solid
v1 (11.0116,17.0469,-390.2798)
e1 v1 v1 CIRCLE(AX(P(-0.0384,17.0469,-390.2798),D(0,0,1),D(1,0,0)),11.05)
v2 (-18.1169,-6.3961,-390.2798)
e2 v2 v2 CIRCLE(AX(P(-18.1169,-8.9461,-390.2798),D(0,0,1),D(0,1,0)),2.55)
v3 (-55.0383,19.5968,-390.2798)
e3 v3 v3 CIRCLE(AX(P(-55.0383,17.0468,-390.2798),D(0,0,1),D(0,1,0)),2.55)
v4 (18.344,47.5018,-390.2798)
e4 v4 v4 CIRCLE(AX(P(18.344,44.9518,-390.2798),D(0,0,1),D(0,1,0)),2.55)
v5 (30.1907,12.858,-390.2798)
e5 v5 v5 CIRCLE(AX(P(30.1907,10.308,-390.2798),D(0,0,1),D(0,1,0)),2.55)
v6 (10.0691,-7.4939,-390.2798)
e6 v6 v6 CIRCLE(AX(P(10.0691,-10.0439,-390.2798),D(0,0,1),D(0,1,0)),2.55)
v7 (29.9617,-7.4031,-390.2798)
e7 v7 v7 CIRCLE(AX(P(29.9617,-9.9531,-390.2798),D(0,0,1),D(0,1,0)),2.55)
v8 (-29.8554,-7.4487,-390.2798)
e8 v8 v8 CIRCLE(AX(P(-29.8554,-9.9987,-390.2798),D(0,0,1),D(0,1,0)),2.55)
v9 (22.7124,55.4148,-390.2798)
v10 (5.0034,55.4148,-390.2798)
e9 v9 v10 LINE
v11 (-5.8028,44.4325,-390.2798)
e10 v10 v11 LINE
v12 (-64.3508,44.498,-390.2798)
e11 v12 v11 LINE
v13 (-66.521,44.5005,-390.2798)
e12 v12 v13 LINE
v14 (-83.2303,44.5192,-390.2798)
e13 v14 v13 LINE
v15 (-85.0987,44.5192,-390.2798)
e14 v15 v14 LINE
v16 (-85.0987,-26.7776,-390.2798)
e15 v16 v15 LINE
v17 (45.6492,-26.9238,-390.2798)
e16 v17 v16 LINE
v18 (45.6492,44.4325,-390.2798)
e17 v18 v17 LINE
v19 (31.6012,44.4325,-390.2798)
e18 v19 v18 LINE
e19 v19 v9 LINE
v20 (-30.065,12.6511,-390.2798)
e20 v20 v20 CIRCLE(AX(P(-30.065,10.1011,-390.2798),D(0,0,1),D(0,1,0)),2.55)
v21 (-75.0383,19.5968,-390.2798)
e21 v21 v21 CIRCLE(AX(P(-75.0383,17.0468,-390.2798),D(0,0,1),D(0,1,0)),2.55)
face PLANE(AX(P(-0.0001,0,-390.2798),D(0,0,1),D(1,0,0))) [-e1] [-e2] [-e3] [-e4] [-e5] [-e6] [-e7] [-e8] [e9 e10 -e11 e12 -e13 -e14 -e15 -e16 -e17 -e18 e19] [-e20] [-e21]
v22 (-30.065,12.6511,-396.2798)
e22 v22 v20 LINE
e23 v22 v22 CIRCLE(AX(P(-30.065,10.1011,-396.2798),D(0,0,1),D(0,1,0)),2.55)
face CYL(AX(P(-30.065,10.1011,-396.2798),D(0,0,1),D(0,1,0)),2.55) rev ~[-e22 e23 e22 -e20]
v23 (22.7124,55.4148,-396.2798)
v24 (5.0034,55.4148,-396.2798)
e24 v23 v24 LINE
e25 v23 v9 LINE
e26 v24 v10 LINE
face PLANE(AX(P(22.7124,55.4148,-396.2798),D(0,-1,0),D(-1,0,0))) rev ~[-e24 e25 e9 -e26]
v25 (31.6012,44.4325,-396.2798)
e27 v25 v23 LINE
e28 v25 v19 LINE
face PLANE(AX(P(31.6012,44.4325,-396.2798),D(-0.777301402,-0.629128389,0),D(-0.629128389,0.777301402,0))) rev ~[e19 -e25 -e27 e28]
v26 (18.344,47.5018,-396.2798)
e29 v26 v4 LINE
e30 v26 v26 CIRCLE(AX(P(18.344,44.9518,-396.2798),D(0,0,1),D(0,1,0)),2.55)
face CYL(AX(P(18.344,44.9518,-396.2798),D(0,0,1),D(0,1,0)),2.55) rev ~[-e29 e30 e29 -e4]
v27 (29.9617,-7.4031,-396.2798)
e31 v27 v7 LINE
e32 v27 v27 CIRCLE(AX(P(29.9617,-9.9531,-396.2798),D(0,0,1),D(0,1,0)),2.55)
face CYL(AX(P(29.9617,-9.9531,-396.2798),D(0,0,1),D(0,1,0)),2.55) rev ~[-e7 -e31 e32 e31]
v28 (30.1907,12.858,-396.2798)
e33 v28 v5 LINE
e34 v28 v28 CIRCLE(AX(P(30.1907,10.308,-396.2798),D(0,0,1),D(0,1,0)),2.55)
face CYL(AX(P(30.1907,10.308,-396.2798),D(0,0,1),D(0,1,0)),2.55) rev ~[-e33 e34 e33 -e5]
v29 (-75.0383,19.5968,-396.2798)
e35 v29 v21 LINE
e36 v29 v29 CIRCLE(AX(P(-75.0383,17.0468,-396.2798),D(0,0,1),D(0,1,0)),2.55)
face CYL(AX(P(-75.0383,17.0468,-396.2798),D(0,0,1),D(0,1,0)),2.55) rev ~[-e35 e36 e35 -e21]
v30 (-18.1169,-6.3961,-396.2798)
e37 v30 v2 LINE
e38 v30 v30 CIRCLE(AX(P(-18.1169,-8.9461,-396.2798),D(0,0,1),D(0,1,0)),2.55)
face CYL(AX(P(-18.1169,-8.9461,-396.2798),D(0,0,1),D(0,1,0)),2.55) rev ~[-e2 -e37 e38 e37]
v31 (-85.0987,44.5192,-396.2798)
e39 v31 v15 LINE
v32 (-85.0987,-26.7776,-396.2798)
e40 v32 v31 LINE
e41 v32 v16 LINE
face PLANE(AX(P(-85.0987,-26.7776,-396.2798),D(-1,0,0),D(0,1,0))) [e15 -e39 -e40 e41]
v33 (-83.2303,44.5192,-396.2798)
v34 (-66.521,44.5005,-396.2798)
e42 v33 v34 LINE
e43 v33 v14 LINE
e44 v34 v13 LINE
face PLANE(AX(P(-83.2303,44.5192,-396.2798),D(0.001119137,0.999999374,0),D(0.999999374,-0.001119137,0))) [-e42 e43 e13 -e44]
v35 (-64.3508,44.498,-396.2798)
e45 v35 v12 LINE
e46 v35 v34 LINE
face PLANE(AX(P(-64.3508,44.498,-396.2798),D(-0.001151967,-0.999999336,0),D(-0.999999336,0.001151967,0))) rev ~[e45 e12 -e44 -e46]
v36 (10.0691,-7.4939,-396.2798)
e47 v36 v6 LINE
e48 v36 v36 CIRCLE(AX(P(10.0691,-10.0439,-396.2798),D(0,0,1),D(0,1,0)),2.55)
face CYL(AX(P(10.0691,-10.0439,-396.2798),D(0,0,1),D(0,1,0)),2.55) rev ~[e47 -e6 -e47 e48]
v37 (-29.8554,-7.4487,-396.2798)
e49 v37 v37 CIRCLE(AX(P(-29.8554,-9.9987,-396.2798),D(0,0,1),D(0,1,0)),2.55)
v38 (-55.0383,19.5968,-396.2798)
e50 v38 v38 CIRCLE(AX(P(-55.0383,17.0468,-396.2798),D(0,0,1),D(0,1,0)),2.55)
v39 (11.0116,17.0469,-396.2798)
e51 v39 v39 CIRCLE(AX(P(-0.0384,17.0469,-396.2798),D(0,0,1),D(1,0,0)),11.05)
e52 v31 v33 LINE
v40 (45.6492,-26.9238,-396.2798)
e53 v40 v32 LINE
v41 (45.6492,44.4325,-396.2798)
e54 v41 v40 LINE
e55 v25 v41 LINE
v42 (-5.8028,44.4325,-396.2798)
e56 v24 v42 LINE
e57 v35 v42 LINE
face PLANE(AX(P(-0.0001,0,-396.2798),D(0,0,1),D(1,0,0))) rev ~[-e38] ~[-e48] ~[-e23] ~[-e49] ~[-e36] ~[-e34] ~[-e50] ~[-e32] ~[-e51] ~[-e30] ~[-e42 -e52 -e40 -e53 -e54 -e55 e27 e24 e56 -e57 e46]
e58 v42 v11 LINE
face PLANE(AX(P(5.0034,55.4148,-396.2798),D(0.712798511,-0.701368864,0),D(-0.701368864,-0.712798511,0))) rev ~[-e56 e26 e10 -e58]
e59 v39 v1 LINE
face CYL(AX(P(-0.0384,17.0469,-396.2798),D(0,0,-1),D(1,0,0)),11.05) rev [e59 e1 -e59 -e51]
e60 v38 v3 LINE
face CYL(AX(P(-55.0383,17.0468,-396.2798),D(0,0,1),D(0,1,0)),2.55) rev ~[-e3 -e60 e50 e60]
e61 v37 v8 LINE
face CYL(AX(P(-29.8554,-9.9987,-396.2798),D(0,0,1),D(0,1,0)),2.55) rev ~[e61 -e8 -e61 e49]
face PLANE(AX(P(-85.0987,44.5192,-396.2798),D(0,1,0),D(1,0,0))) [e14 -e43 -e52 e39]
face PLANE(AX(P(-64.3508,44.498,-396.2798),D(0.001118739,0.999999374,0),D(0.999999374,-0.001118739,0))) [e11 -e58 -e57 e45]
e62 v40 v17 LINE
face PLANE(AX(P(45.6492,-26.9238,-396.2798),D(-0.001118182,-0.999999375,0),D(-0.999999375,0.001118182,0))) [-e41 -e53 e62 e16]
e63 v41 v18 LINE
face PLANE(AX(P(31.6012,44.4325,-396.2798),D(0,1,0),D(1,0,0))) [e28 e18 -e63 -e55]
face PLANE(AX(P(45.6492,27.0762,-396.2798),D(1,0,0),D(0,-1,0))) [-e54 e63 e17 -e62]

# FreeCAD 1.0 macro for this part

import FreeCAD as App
import Part
import Sketcher

V = App.Vector
Q = App.Units.Quantity

doc = App.newDocument("Part")
params = doc.addObject("Spreadsheet::Sheet", "Params")
for row, (alias, value) in enumerate([
    ("sketch1_diameter", "22.1 mm"),
    ("pad1_length", "6 mm"),
    ("sketch2_diameter", "5.1 mm"),
    ("hole_diameter", "5.1 mm"),
], start=1):
    params.set(f"A{row}", alias)
    params.set(f"B{row}", "=" + value)
    params.setAlias(f"B{row}", alias)

body = doc.addObject("PartDesign::Body", "Body")

sketch1 = body.newObject("Sketcher::SketchObject", "Sketch")
sketch1.AttachmentSupport = (doc.getObject("XY_Plane"), [""])
sketch1.MapMode = "FlatFace"
sketch1.AttachmentOffset = App.Placement(V(0, 0, -396.2798), App.Rotation())
sketch1.addGeometry(Part.LineSegment(V(45.6, -26.9, 0), V(45.6, 44.4, 0)), False)
sketch1.addGeometry(Part.LineSegment(V(45.6, 44.4, 0), V(31.6, 44.4, 0)), False)
sketch1.addGeometry(Part.LineSegment(V(31.6, 44.4, 0), V(22.7, 55.4, 0)), False)
sketch1.addGeometry(Part.LineSegment(V(22.7, 55.4, 0), V(5, 55.4, 0)), False)
sketch1.addGeometry(Part.LineSegment(V(5, 55.4, 0), V(-5.8, 44.4, 0)), False)
sketch1.addGeometry(Part.LineSegment(V(-5.8, 44.4, 0), V(-64.4, 44.5, 0)), False)
sketch1.addGeometry(Part.LineSegment(V(-64.4, 44.5, 0), V(-66.5, 44.5, 0)), False)
sketch1.addGeometry(Part.LineSegment(V(-66.5, 44.5, 0), V(-83.2, 44.5, 0)), False)
sketch1.addGeometry(Part.LineSegment(V(-83.2, 44.5, 0), V(-85.1, 44.5, 0)), False)
sketch1.addGeometry(Part.LineSegment(V(-85.1, 44.5, 0), V(-85.1, -26.8, 0)), False)
sketch1.addGeometry(Part.LineSegment(V(-85.1, -26.8, 0), V(45.6, -26.9, 0)), False)
sketch1.addGeometry(Part.Circle(V(0, 17, 0), V(0, 0, 1), 11.1), False)
sketch1.addConstraint(Sketcher.Constraint("Coincident", 0, 2, 1, 1))
sketch1.addConstraint(Sketcher.Constraint("Coincident", 1, 2, 2, 1))
sketch1.addConstraint(Sketcher.Constraint("Coincident", 2, 2, 3, 1))
sketch1.addConstraint(Sketcher.Constraint("Coincident", 3, 2, 4, 1))
sketch1.addConstraint(Sketcher.Constraint("Coincident", 4, 2, 5, 1))
sketch1.addConstraint(Sketcher.Constraint("Coincident", 5, 2, 6, 1))
sketch1.addConstraint(Sketcher.Constraint("Coincident", 6, 2, 7, 1))
sketch1.addConstraint(Sketcher.Constraint("Coincident", 7, 2, 8, 1))
sketch1.addConstraint(Sketcher.Constraint("Coincident", 8, 2, 9, 1))
sketch1.addConstraint(Sketcher.Constraint("Coincident", 9, 2, 10, 1))
sketch1.addConstraint(Sketcher.Constraint("Coincident", 10, 2, 0, 1))
sketch1.addConstraint(Sketcher.Constraint("Vertical", 0))
sketch1.addConstraint(Sketcher.Constraint("Horizontal", 1))
sketch1.addConstraint(Sketcher.Constraint("Horizontal", 3))
sketch1.addConstraint(Sketcher.Constraint("Horizontal", 8))
sketch1.addConstraint(Sketcher.Constraint("Vertical", 9))
sketch1.addConstraint(Sketcher.Constraint("Parallel", 5, 6))
sketch1.addConstraint(Sketcher.Constraint("Parallel", 6, 7))
sketch1.addConstraint(Sketcher.Constraint("Parallel", 7, 10))
sketch1.addConstraint(Sketcher.Constraint("Horizontal", 1, 2, 4, 2))
sketch1.addConstraint(Sketcher.Constraint("Diameter", 11, Q("22.1 mm")))
sketch1.addConstraint(Sketcher.Constraint("DistanceX", 1, 2, 1, 1, Q("14.048 mm")))
sketch1.addConstraint(Sketcher.Constraint("DistanceX", 3, 2, 3, 1, Q("17.709 mm")))
sketch1.addConstraint(Sketcher.Constraint("Distance", 5, Q("58.548 mm")))
sketch1.addConstraint(Sketcher.Constraint("Distance", 10, Q("130.748 mm")))
sketch1.addConstraint(Sketcher.Constraint("DistanceX", 8, 2, 8, 1, Q("1.8684 mm")))
sketch1.addConstraint(Sketcher.Constraint("DistanceY", 0, 1, 0, 2, Q("71.3563 mm")))
sketch1.addConstraint(Sketcher.Constraint("DistanceY", 9, 2, 9, 1, Q("71.2968 mm")))
sketch1.addConstraint(Sketcher.Constraint("DistanceY", -1, 1, 11, 3, Q("17.047 mm")))
sketch1.addConstraint(Sketcher.Constraint("DistanceY", -1, 1, 5, 2, Q("44.498 mm")))
sketch1.addConstraint(Sketcher.Constraint("DistanceX", 6, 2, -1, 1, Q("66.521 mm")))
sketch1.addConstraint(Sketcher.Constraint("DistanceY", 11, 3, 2, 2, Q("38.368 mm")))
sketch1.addConstraint(Sketcher.Constraint("DistanceX", 4, 2, 1, 2, Q("37.404 mm")))
sketch1.addConstraint(Sketcher.Constraint("DistanceX", 7, 2, 11, 3, Q("83.192 mm")))
sketch1.addConstraint(Sketcher.Constraint("Distance", 2, Q("14.1288 mm")))
sketch1.addConstraint(Sketcher.Constraint("Distance", 6, Q("2.1702 mm")))
sketch1.setExpression("Constraints[20]", "Params.sketch1_diameter")
pad1 = body.newObject("PartDesign::Pad", "Pad")
pad1.Profile = sketch1
pad1.setExpression("Length", "Params.pad1_length")

sketch2 = body.newObject("Sketcher::SketchObject", "Sketch001")
sketch2.AttachmentSupport = (doc.getObject("XY_Plane"), [""])
sketch2.MapMode = "FlatFace"
sketch2.AttachmentOffset = App.Placement(V(0, 0, -396.2798), App.Rotation())
sketch2.addGeometry(Part.Circle(V(30, -10, 0), V(0, 0, 1), 2.5), False)
sketch2.addGeometry(Part.Circle(V(10.1, -10, 0), V(0, 0, 1), 2.5), False)
sketch2.addGeometry(Part.Circle(V(-18.1, -8.9, 0), V(0, 0, 1), 2.5), False)
sketch2.addGeometry(Part.Circle(V(-29.9, -10, 0), V(0, 0, 1), 2.5), False)
sketch2.addGeometry(Part.Circle(V(-30.1, 10.1, 0), V(0, 0, 1), 2.5), False)
sketch2.addGeometry(Part.Circle(V(30.2, 10.3, 0), V(0, 0, 1), 2.5), False)
sketch2.addGeometry(Part.Circle(V(18.3, 45, 0), V(0, 0, 1), 2.5), False)
sketch2.addGeometry(Part.Circle(V(-75, 17, 0), V(0, 0, 1), 2.5), False)
sketch2.addGeometry(Part.Circle(V(-55, 17, 0), V(0, 0, 1), 2.5), False)
sketch2.addConstraint(Sketcher.Constraint("Equal", 0, 1))
sketch2.addConstraint(Sketcher.Constraint("Equal", 1, 2))
sketch2.addConstraint(Sketcher.Constraint("Equal", 2, 3))
sketch2.addConstraint(Sketcher.Constraint("Equal", 3, 4))
sketch2.addConstraint(Sketcher.Constraint("Equal", 4, 5))
sketch2.addConstraint(Sketcher.Constraint("Equal", 5, 6))
sketch2.addConstraint(Sketcher.Constraint("Equal", 6, 7))
sketch2.addConstraint(Sketcher.Constraint("Equal", 7, 8))
sketch2.addConstraint(Sketcher.Constraint("Horizontal", 7, 3, 8, 3))
sketch2.addConstraint(Sketcher.Constraint("Diameter", 0, Q("5.1 mm")))
sketch2.addConstraint(Sketcher.Constraint("DistanceX", 7, 3, 8, 3, Q("20 mm")))
sketch2.addConstraint(Sketcher.Constraint("DistanceY", 0, 3, -1, 1, Q("9.953 mm")))
sketch2.addConstraint(Sketcher.Constraint("DistanceX", -1, 1, 1, 3, Q("10.069 mm")))
sketch2.addConstraint(Sketcher.Constraint("DistanceY", 1, 3, -1, 1, Q("10.044 mm")))
sketch2.addConstraint(Sketcher.Constraint("DistanceX", 2, 3, -1, 1, Q("18.117 mm")))
sketch2.addConstraint(Sketcher.Constraint("DistanceY", 2, 3, -1, 1, Q("8.946 mm")))
sketch2.addConstraint(Sketcher.Constraint("DistanceX", 4, 3, -1, 1, Q("30.065 mm")))
sketch2.addConstraint(Sketcher.Constraint("DistanceY", -1, 1, 4, 3, Q("10.101 mm")))
sketch2.addConstraint(Sketcher.Constraint("DistanceY", -1, 1, 5, 3, Q("10.308 mm")))
sketch2.addConstraint(Sketcher.Constraint("DistanceX", -1, 1, 6, 3, Q("18.344 mm")))
sketch2.addConstraint(Sketcher.Constraint("DistanceX", 3, 3, 0, 3, Q("59.817 mm")))
sketch2.addConstraint(Sketcher.Constraint("DistanceX", 0, 3, 5, 3, Q("0.229 mm")))
sketch2.addConstraint(Sketcher.Constraint("DistanceY", 0, 3, 6, 3, Q("54.905 mm")))
sketch2.addConstraint(Sketcher.Constraint("DistanceX", 7, 3, 3, 3, Q("45.183 mm")))
sketch2.addConstraint(Sketcher.Constraint("DistanceY", 2, 3, 7, 3, Q("25.993 mm")))
sketch2.addConstraint(Sketcher.Constraint("DistanceX", -1, 1, 0, 3, Q("29.9617 mm")))
sketch2.addConstraint(Sketcher.Constraint("DistanceY", 3, 3, -1, 1, Q("9.9987 mm")))
sketch2.setExpression("Constraints[9]", "Params.sketch2_diameter")
doc.recompute()
hole = body.newObject("PartDesign::Hole", "Hole")
hole.Profile = sketch2
hole.ThreadType = "None"
hole.setExpression("Diameter", "Params.hole_diameter")
hole.DepthType = "ThroughAll"
hole.Reversed = True

doc.recompute()
